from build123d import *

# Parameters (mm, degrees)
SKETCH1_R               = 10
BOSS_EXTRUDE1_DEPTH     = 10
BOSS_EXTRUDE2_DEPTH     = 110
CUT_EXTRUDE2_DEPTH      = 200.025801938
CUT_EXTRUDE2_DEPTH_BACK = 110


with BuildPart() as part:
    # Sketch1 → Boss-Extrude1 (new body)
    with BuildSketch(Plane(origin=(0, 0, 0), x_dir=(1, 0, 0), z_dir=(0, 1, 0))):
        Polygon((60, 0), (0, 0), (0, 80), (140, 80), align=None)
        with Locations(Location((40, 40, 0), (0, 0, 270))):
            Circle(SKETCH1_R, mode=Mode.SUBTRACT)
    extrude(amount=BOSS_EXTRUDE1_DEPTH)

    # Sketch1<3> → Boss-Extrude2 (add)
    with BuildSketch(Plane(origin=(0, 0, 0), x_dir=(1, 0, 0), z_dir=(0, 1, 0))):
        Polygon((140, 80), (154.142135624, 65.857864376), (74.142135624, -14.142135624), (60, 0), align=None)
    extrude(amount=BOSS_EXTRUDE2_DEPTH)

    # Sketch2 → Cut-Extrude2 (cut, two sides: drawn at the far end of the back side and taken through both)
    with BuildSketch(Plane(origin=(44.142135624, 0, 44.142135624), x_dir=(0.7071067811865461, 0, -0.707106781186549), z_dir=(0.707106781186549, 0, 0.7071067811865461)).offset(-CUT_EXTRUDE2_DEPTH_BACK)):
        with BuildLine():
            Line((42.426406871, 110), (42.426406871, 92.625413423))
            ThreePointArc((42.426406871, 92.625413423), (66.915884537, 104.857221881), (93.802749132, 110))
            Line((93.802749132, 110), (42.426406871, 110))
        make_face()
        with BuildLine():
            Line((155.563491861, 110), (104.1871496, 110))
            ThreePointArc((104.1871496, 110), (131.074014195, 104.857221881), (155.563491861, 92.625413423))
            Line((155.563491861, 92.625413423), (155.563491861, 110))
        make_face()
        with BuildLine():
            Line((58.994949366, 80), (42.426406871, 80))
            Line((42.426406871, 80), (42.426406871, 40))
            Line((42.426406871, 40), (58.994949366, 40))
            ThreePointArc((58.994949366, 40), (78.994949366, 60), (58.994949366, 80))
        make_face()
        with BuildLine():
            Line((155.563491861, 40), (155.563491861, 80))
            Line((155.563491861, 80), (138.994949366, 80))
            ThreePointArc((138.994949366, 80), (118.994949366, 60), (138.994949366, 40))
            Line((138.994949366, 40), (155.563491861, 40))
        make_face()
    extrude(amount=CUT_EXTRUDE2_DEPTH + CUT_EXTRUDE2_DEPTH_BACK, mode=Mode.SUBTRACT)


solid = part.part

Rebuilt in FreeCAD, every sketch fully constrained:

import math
import FreeCAD as App
import Part
import Sketcher
from FreeCAD import Vector
Q = App.Units.Quantity


def add_polygon(sketch, points):
    """Adds a closed chain of lines whose ends are joined by coincident constraints."""
    first, n = sketch.GeometryCount, len(points)
    for a, b in zip(points, points[1:] + points[:1]):
        sketch.addGeometry(Part.LineSegment(App.Vector(*a, 0), App.Vector(*b, 0)), False)
    for i in range(n):
        sketch.addConstraint(Sketcher.Constraint("Coincident", first + i, 2, first + (i + 1) % n, 1))

doc = App.newDocument("Part")
params = doc.addObject("Spreadsheet::Sheet", "Params")
for row, (alias, value) in enumerate([
    ("sketch1_diameter", "20 mm"),
    ("sketch1_width", "60 mm"),
    ("sketch1_width2", "140 mm"),
    ("sketch1_height", "80 mm"),
    ("pad1_length", "10 mm"),
    ("sketch2_length", "20 mm"),
    ("pad2_length", "110 mm"),
    ("sketch3_radius", "20 mm"),
], start=1):
    params.set(f"A{row}", alias)
    params.set(f"B{row}", "=" + value)
    params.setAlias(f"B{row}", alias)

body = doc.addObject("PartDesign::Body", "Body")

# Sketch on XZ plane
sketch1 = doc.addObject("Sketcher::SketchObject", "Sketch")
body.addObject(sketch1)
sketch1.AttachmentSupport = (doc.XZ_Plane, [""])
sketch1.MapMode = "FlatFace"
add_polygon(sketch1, [(0, 0), (60, 0), (140, -80), (0, -80)])  # lines 0-3
sketch1.addGeometry(Part.Circle(Vector(40, -40, 0), Vector(0, 0, 1), 10), False)  # 4
sketch1.addConstraint([
    Sketcher.Constraint("Horizontal", 0),
    Sketcher.Constraint("Horizontal", 2),
    Sketcher.Constraint("Vertical", 3),
    Sketcher.Constraint("Coincident", 3, 2, -1, 1),
    Sketcher.Constraint("Diameter", 4, Q("20 mm")),
    Sketcher.Constraint("DistanceX", 0, 1, 0, 2, Q("60 mm")),
    Sketcher.Constraint("DistanceX", 2, 2, 2, 1, Q("140 mm")),
    Sketcher.Constraint("DistanceY", 3, 1, 3, 2, Q("80 mm")),
    Sketcher.Constraint("DistanceX", -1, 1, 4, 3, Q("40 mm")),
    Sketcher.Constraint("DistanceY", 4, 3, -1, 1, Q("40 mm")),
])
sketch1.setExpression("Constraints[8]", "Params.sketch1_diameter")
sketch1.setExpression("Constraints[9]", "Params.sketch1_width")
sketch1.setExpression("Constraints[10]", "Params.sketch1_width2")
sketch1.setExpression("Constraints[11]", "Params.sketch1_height")
pad1 = doc.addObject("PartDesign::Pad", "Pad")
body.addObject(pad1)
pad1.Profile = sketch1
pad1.setExpression("Length", "Params.pad1_length")
pad1.Reversed = True

# Sketch on XZ plane
sketch2 = doc.addObject("Sketcher::SketchObject", "Sketch001")
body.addObject(sketch2)
sketch2.AttachmentSupport = (doc.XZ_Plane, [""])
sketch2.MapMode = "FlatFace"
add_polygon(sketch2, [(154, -66), (140, -80), (60, 0), (74, 14)])  # lines 0-3
sketch2.addConstraint([
    Sketcher.Constraint("PointOnObject", 1, 2, -1),
    Sketcher.Constraint("Perpendicular", 0, 1),
    Sketcher.Constraint("Perpendicular", 1, 2),
    Sketcher.Constraint("Perpendicular", 2, 3),
    Sketcher.Constraint("Angle", 0, Q("-135 deg")),
    Sketcher.Constraint("Distance", 0, Q("20 mm")),
    Sketcher.Constraint("DistanceX", -1, 1, 0, 2, Q("140 mm")),
    Sketcher.Constraint("DistanceY", 0, 2, -1, 1, Q("80 mm")),
])
sketch2.setExpression("Constraints[9]", "Params.sketch2_length")
pad2 = doc.addObject("PartDesign::Pad", "Pad001")
body.addObject(pad2)
pad2.Profile = sketch2
pad2.setExpression("Length", "Params.pad2_length")
pad2.Reversed = True

# Sketch on an angled plane
sketch3 = doc.addObject("Sketcher::SketchObject", "Sketch002")
body.addObject(sketch3)
sketch3.Placement = App.Placement(Vector(44.142136, 0, 44.142136), App.Rotation(Vector(0.707106781, 0, -0.707106781), Vector(0, 0.999999999, 0), Vector(0.707106781, 0, 0.707106781), "ZXY"))
sketch3.addGeometry([
    Part.LineSegment(Vector(42, 110, 0), Vector(42, 93, 0)),  # 0
    Part.ArcOfCircle(Part.Circle(Vector(99, 10, 0), Vector(0, 0, 1), 100), math.radians(93), math.radians(124)),  # 1
    Part.LineSegment(Vector(94, 110, 0), Vector(42, 110, 0)),  # 2
    Part.LineSegment(Vector(156, 110, 0), Vector(104, 110, 0)),  # 3
    Part.ArcOfCircle(Part.Circle(Vector(99, 10, 0), Vector(0, 0, 1), 100), math.radians(56), math.radians(87)),  # 4
    Part.LineSegment(Vector(156, 93, 0), Vector(156, 110, 0)),  # 5
    Part.LineSegment(Vector(59, 80, 0), Vector(42, 80, 0)),  # 6
    Part.LineSegment(Vector(42, 80, 0), Vector(42, 40, 0)),  # 7
    Part.LineSegment(Vector(42, 40, 0), Vector(59, 40, 0)),  # 8
    Part.ArcOfCircle(Part.Circle(Vector(59, 60, 0), Vector(0, 0, 1), 20), math.radians(-90), math.radians(90)),  # 9
    Part.LineSegment(Vector(156, 40, 0), Vector(156, 80, 0)),  # 10
    Part.LineSegment(Vector(156, 80, 0), Vector(139, 80, 0)),  # 11
    Part.ArcOfCircle(Part.Circle(Vector(139, 60, 0), Vector(0, 0, 1), 20), math.radians(90), math.radians(270)),  # 12
    Part.LineSegment(Vector(139, 40, 0), Vector(156, 40, 0)),  # 13
], False)
sketch3.addConstraint([
    Sketcher.Constraint("Coincident", 0, 2, 1, 2),
    Sketcher.Constraint("Coincident", 1, 1, 2, 1),
    Sketcher.Constraint("Coincident", 2, 2, 0, 1),
    Sketcher.Constraint("Coincident", 3, 2, 4, 2),
    Sketcher.Constraint("Coincident", 4, 1, 5, 1),
    Sketcher.Constraint("Coincident", 5, 2, 3, 1),
    Sketcher.Constraint("Coincident", 6, 2, 7, 1),
    Sketcher.Constraint("Coincident", 7, 2, 8, 1),
    Sketcher.Constraint("Tangent", 8, 2, 9, 1),
    Sketcher.Constraint("Tangent", 9, 2, 6, 1),
    Sketcher.Constraint("Coincident", 10, 2, 11, 1),
    Sketcher.Constraint("Tangent", 11, 2, 12, 1),
    Sketcher.Constraint("Tangent", 12, 2, 13, 1),
    Sketcher.Constraint("Coincident", 13, 2, 10, 1),
    Sketcher.Constraint("Vertical", 0),
    Sketcher.Constraint("Horizontal", 2),
    Sketcher.Constraint("Horizontal", 3),
    Sketcher.Constraint("Vertical", 5),
    Sketcher.Constraint("Horizontal", 6),
    Sketcher.Constraint("Vertical", 7),
    Sketcher.Constraint("Horizontal", 8),
    Sketcher.Constraint("Vertical", 10),
    Sketcher.Constraint("Horizontal", 11),
    Sketcher.Constraint("Horizontal", 13),
    Sketcher.Constraint("Coincident", 4, 3, 1, 3),
    Sketcher.Constraint("Equal", 1, 4),
    Sketcher.Constraint("Equal", 9, 12),
    Sketcher.Constraint("Horizontal", 9, 3, 12, 3),
    Sketcher.Constraint("Horizontal", 2, 2, 3, 2),
    Sketcher.Constraint("Horizontal", 0, 2, 4, 1),
    Sketcher.Constraint("Vertical", 2, 2, 6, 2),
    Sketcher.Constraint("Vertical", 5, 2, 10, 2),
    Sketcher.Constraint("Equal", 8, 11),
    Sketcher.Constraint("Radius", 9, Q("20 mm")),
    Sketcher.Constraint("DistanceY", -1, 1, 1, 3, Q("10 mm")),
    Sketcher.Constraint("DistanceY", -1, 1, 9, 3, Q("60 mm")),
    Sketcher.Constraint("DistanceY", -1, 1, 1, 1, Q("110 mm")),
    Sketcher.Constraint("DistanceX", 9, 3, 1, 3, Q("40 mm")),
    Sketcher.Constraint("Radius", 1, Q("100.134704 mm")),
    Sketcher.Constraint("DistanceX", 2, 2, 2, 1, Q("51.376342 mm")),
    Sketcher.Constraint("DistanceX", -1, 1, 1, 3, Q("98.994949 mm")),
])
sketch3.setExpression("Constraints[33]", "Params.sketch3_radius")
pocket1 = doc.addObject("PartDesign::Pocket", "Pocket")
body.addObject(pocket1)
pocket1.Profile = sketch3
pocket1.Type = "ThroughAll"
pocket1.Midplane = True

doc.recompute()
